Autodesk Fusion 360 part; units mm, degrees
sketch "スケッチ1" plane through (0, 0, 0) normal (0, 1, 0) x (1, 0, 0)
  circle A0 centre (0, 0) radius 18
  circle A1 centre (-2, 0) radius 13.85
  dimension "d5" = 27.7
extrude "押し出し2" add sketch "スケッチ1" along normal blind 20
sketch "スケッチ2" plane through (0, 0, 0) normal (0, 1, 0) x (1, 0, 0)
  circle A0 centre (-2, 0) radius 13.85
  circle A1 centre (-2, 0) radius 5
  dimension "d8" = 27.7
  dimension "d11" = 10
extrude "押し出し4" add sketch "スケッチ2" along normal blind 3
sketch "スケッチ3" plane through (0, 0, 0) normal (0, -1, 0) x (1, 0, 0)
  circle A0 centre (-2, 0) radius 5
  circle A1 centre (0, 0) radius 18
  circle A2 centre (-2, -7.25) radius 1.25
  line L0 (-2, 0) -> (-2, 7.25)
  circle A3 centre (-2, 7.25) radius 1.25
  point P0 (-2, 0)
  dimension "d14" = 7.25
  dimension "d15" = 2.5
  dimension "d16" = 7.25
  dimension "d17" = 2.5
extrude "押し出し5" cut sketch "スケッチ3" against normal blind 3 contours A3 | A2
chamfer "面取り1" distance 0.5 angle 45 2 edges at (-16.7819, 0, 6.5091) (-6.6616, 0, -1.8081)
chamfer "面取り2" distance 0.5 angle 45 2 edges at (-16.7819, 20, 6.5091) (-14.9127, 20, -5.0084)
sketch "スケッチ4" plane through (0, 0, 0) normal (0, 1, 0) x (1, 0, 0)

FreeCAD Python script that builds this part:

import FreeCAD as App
import Part
import Sketcher
from FreeCAD import Vector
Q = App.Units.Quantity


def edges_at(feature, points):
    """Names of the edges that pass closest to the given points."""
    edges = feature.Shape.Edges
    near = lambda p: min(range(len(edges)), key=lambda i: edges[i].distToShape(Part.Vertex(*p))[0])
    return sorted({f"Edge{near(p) + 1}" for p in points})

doc = App.newDocument("Part")
body = doc.addObject("PartDesign::Body", "Body")

# Sketch on XZ plane
sketch1 = body.newObject("Sketcher::SketchObject", "Sketch")
sketch1.AttachmentSupport = (doc.getObject("XZ_Plane"), [""])
sketch1.MapMode = "FlatFace"
sketch1.addGeometry([
    Part.Circle(Vector(0, 0, 0), Vector(0, 0, 1), 18),
    Part.Circle(Vector(-2, 0, 0), Vector(0, 0, 1), 14),
], False)
sketch1.addConstraint([
    Sketcher.Constraint("Coincident", 0, 3, -1, 1),
    Sketcher.Constraint("PointOnObject", 1, 3, -1),
    Sketcher.Constraint("Diameter", 1, Q("27.7 mm")),
    Sketcher.Constraint("Diameter", 0, Q("36 mm")),
    Sketcher.Constraint("DistanceX", 1, 3, -1, 1, Q("2 mm")),
])
pad1 = body.newObject("PartDesign::Pad", "Pad")
pad1.Profile = sketch1
pad1.Length = 20
pad1.Reversed = True

# Sketch on XZ plane
sketch2 = body.newObject("Sketcher::SketchObject", "Sketch001")
sketch2.AttachmentSupport = (doc.getObject("XZ_Plane"), [""])
sketch2.MapMode = "FlatFace"
sketch2.addGeometry([
    Part.Circle(Vector(-2, 0, 0), Vector(0, 0, 1), 14),
    Part.Circle(Vector(-2, 0, 0), Vector(0, 0, 1), 5),
], False)
sketch2.addConstraint([
    Sketcher.Constraint("Coincident", 1, 3, 0, 3),
    Sketcher.Constraint("PointOnObject", 0, 3, -1),
    Sketcher.Constraint("Diameter", 1, Q("10 mm")),
    Sketcher.Constraint("Diameter", 0, Q("27.7 mm")),
    Sketcher.Constraint("DistanceX", 0, 3, -1, 1, Q("2 mm")),
])
pad2 = body.newObject("PartDesign::Pad", "Pad001")
pad2.Profile = sketch2
pad2.Length = 3
pad2.Reversed = True

# Sketch on XZ plane
sketch3 = body.newObject("Sketcher::SketchObject", "Sketch002")
sketch3.AttachmentSupport = (doc.getObject("XZ_Plane"), [""])
sketch3.MapMode = "FlatFace"
sketch3.addGeometry([
    Part.Circle(Vector(-2, 7.2, 0), Vector(0, 0, 1), 1.2),
    Part.Circle(Vector(-2, -7.2, 0), Vector(0, 0, 1), 1.2),
], False)
sketch3.addConstraint([
    Sketcher.Constraint("Equal", 0, 1),
    Sketcher.Constraint("Symmetric", 0, 3, 1, 3, -1),
    Sketcher.Constraint("Diameter", 0, Q("2.5 mm")),
    Sketcher.Constraint("DistanceY", -1, 1, 0, 3, Q("7.25 mm")),
    Sketcher.Constraint("DistanceX", 0, 3, -1, 1, Q("2 mm")),
])
pocket1 = body.newObject("PartDesign::Pocket", "Pocket")
pocket1.Profile = sketch3
pocket1.Length = 3
doc.recompute()

chamfer = body.newObject("PartDesign::Chamfer", "Chamfer")
chamfer.Base = (pocket1, edges_at(pocket1, [(-16.782, 0, 6.509), (-6.662, 0, -1.808)]))
chamfer.Size = 0.5
doc.recompute()

chamfer2 = body.newObject("PartDesign::Chamfer", "Chamfer001")
chamfer2.Base = (chamfer, edges_at(chamfer, [(-16.782, 20, 6.509), (-14.913, 20, -5.008)]))
chamfer2.Size = 0.5

doc.recompute()
